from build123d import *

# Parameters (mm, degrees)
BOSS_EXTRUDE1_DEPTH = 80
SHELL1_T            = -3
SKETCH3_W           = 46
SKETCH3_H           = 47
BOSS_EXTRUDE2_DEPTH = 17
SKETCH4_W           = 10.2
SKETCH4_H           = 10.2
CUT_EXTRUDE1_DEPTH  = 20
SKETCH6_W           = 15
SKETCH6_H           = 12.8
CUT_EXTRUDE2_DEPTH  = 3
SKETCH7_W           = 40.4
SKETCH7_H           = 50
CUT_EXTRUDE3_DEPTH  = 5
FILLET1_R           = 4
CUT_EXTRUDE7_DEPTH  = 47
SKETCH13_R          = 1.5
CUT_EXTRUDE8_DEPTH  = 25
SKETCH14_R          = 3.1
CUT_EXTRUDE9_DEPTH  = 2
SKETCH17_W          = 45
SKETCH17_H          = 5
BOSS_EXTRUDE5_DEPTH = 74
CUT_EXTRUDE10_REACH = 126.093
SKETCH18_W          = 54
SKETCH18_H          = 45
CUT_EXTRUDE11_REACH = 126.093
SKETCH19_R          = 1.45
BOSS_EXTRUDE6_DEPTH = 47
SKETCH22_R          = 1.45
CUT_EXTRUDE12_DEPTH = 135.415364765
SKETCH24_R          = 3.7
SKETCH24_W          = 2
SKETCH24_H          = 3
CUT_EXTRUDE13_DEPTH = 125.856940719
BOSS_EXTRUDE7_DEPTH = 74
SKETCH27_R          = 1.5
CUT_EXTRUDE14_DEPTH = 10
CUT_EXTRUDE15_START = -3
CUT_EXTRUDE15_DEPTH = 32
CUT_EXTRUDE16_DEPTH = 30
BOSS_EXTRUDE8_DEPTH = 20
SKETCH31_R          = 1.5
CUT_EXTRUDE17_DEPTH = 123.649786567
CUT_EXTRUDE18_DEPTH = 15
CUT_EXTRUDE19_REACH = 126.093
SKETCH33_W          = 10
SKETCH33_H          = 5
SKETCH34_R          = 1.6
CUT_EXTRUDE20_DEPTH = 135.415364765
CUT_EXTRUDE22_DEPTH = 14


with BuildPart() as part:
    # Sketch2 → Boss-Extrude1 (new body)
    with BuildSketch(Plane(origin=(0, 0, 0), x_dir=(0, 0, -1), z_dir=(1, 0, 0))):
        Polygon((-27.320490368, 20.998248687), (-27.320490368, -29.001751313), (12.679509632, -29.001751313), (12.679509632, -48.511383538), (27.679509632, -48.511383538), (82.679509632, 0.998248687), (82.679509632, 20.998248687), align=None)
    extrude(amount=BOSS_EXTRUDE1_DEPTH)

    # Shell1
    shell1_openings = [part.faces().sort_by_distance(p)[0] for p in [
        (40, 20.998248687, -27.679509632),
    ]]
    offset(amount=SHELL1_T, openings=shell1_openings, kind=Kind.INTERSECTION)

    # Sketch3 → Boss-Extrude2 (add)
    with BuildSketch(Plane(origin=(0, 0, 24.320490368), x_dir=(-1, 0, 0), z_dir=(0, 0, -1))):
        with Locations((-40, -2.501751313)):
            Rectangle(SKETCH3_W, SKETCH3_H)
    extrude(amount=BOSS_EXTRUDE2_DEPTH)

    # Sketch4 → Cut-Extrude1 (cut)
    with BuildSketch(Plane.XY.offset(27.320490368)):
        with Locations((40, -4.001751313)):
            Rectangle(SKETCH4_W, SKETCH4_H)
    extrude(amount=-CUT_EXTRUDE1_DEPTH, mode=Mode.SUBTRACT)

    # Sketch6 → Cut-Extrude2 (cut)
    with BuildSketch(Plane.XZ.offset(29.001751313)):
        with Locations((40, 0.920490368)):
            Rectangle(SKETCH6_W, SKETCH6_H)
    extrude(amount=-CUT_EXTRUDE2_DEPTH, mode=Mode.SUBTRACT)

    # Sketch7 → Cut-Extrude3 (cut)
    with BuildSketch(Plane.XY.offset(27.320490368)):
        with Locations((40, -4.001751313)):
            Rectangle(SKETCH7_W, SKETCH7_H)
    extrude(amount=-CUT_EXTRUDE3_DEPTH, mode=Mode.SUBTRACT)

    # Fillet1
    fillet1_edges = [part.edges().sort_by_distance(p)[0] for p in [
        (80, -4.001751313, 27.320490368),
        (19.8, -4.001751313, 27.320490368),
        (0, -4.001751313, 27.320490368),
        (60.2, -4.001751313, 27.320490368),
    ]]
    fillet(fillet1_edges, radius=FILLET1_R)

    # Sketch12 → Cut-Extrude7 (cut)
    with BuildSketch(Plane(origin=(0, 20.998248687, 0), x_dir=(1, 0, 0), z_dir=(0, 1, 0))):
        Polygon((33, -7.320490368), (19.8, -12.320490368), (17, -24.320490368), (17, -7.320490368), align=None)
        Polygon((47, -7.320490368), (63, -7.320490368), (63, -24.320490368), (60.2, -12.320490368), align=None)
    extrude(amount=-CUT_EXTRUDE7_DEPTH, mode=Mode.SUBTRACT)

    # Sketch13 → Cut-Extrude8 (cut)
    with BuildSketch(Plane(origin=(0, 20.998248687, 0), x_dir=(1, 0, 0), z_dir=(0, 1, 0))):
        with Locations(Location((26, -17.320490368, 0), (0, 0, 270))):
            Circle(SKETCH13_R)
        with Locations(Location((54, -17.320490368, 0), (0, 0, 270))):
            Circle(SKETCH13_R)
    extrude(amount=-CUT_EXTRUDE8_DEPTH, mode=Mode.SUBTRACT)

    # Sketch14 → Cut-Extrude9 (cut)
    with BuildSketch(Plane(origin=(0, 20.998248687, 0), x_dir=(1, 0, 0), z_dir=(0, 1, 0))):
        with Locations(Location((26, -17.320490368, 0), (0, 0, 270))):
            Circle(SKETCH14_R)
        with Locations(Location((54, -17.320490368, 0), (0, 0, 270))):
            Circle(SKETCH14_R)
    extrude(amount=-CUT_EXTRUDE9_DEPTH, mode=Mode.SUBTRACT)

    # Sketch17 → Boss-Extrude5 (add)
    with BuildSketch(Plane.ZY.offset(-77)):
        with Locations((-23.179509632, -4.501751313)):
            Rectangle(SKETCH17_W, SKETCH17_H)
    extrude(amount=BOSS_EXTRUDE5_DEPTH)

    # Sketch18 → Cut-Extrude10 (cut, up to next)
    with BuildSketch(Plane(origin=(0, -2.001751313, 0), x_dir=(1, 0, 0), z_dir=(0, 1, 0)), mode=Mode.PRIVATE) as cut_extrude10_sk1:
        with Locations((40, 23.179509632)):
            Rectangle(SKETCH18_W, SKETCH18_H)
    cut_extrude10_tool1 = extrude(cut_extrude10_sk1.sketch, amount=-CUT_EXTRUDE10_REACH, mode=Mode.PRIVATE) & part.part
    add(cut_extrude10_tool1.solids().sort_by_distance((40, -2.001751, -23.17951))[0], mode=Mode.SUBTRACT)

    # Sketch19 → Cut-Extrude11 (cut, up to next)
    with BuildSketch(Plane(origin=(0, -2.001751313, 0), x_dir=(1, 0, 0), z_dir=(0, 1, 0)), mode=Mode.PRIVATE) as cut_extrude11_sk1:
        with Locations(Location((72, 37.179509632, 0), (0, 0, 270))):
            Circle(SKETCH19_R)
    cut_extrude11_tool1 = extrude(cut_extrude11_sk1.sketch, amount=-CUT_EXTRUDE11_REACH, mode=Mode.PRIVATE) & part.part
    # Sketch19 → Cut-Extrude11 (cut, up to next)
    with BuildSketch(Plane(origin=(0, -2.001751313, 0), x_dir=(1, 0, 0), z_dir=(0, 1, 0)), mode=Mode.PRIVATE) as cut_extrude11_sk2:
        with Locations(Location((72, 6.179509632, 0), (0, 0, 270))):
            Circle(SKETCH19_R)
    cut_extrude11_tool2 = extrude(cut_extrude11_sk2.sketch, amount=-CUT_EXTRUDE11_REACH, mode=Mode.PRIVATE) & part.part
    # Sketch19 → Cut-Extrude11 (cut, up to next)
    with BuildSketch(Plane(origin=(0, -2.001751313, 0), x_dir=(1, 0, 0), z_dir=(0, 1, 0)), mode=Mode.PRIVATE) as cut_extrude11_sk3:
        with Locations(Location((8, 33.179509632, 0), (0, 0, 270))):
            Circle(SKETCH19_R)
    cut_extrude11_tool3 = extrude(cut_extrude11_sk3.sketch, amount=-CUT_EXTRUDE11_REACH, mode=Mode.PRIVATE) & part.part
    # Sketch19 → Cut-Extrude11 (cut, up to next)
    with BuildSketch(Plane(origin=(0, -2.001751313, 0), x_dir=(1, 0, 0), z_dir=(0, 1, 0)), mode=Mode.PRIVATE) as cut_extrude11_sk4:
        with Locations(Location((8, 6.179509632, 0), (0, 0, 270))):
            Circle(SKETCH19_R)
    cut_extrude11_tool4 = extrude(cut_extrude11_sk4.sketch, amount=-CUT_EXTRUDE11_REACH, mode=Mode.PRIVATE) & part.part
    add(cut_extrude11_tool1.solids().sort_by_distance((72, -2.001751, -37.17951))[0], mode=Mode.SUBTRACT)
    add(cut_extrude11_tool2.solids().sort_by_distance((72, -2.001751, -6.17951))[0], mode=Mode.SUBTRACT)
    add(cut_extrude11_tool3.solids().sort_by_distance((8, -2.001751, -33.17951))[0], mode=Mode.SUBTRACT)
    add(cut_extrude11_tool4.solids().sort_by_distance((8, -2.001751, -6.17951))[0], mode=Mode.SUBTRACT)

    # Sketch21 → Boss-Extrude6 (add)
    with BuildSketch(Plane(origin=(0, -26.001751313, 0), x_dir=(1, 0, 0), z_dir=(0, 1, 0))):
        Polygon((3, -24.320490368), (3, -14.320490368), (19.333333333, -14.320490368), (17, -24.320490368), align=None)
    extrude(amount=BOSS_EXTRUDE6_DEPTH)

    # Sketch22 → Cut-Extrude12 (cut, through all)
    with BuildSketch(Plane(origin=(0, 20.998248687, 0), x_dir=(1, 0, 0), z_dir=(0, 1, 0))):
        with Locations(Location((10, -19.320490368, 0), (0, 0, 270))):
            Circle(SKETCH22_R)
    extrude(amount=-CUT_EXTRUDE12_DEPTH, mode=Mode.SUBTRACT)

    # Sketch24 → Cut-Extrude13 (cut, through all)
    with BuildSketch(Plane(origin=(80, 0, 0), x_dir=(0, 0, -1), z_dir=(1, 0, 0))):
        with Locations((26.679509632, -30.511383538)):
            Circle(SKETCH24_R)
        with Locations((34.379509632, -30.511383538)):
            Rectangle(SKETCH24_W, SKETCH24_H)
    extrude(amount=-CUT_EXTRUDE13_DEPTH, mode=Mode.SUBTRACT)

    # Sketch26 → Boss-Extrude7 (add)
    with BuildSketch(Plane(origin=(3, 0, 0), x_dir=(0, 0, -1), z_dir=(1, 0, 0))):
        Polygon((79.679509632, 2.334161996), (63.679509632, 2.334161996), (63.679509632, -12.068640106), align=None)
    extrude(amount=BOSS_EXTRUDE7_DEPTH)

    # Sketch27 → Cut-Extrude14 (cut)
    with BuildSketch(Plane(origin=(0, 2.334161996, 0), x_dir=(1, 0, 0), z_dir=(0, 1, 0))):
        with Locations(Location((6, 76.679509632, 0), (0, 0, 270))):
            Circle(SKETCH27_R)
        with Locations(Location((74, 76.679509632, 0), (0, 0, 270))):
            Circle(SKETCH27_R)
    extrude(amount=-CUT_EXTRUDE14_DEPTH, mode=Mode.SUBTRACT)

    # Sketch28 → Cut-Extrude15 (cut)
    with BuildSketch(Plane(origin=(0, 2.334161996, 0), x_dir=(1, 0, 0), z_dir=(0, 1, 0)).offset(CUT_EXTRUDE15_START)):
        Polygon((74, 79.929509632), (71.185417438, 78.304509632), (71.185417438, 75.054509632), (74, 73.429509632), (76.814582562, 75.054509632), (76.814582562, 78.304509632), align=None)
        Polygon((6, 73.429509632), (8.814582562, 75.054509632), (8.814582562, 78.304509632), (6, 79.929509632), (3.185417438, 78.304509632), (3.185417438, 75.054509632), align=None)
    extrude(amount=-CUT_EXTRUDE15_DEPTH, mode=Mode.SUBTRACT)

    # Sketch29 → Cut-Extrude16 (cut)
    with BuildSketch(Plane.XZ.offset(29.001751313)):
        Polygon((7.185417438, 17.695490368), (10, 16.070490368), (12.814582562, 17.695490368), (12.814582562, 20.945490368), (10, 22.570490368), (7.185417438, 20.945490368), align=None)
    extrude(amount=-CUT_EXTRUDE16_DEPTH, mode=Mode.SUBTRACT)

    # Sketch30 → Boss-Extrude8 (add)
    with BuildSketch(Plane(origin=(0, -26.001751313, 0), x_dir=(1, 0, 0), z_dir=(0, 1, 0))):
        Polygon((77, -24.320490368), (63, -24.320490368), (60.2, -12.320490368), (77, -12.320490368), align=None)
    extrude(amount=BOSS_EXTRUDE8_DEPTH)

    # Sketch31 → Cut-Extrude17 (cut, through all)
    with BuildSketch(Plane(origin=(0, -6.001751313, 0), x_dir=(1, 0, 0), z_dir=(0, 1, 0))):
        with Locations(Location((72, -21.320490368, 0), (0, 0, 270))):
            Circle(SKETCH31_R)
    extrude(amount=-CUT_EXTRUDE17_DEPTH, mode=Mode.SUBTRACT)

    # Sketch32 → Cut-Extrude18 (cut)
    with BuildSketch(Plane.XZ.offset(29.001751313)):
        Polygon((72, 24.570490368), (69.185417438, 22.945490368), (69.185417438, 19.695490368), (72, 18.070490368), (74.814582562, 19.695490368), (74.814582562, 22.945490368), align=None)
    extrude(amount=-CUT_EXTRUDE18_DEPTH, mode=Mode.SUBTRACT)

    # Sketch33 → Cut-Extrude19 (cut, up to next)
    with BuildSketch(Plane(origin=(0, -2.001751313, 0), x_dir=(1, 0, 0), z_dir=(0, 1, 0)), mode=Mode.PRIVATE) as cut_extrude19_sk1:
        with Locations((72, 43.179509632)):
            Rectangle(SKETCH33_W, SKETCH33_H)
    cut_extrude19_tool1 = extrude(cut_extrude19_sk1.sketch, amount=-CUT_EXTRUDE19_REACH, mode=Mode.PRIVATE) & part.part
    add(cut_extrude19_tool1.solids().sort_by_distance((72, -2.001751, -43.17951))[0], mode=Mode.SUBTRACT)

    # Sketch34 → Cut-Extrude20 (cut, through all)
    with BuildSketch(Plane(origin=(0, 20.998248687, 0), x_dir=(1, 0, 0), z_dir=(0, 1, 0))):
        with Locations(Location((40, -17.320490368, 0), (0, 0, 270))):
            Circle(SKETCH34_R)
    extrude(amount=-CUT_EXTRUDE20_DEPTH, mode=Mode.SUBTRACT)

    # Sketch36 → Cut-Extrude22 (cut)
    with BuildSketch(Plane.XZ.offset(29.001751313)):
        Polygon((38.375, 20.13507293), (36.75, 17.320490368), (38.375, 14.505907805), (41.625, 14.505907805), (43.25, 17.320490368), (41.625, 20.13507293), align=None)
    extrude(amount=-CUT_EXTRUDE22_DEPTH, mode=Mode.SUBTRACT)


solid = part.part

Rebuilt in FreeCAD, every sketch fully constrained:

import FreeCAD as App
import Part
import Sketcher

V = App.Vector
Q = App.Units.Quantity


def edges_at(feature, points):
    """Names of the edges that pass closest to the given points."""
    edges = feature.Shape.Edges
    near = lambda p: min(range(len(edges)), key=lambda i: edges[i].distToShape(Part.Vertex(*p))[0])
    return sorted({f"Edge{near(p) + 1}" for p in points})


def faces_at(feature, points):
    """Names of the faces that lie closest to the given points."""
    faces = feature.Shape.Faces
    near = lambda p: min(range(len(faces)), key=lambda i: faces[i].distToShape(Part.Vertex(*p))[0])
    return sorted({f"Face{near(p) + 1}" for p in points})

doc = App.newDocument("Part")
body = doc.addObject("PartDesign::Body", "Body")

# Sketch on YZ plane
sketch1 = doc.addObject("Sketcher::SketchObject", "Sketch")
body.addObject(sketch1)
sketch1.AttachmentSupport = (doc.YZ_Plane, [""])
sketch1.MapMode = "FlatFace"
sketch1.addGeometry([
    Part.LineSegment(V(21, 27, 0), V(-29, 27, 0)),  # 0
    Part.LineSegment(V(-29, 27, 0), V(-29, -13, 0)),  # 1
    Part.LineSegment(V(-29, -13, 0), V(-49, -13, 0)),  # 2
    Part.LineSegment(V(-49, -13, 0), V(-49, -28, 0)),  # 3
    Part.LineSegment(V(-49, -28, 0), V(1, -83, 0)),  # 4
    Part.LineSegment(V(1, -83, 0), V(21, -83, 0)),  # 5
    Part.LineSegment(V(21, -83, 0), V(21, 27, 0)),  # 6
], False)
sketch1.addConstraint([
    Sketcher.Constraint("Coincident", 0, 2, 1, 1),
    Sketcher.Constraint("Coincident", 1, 2, 2, 1),
    Sketcher.Constraint("Coincident", 2, 2, 3, 1),
    Sketcher.Constraint("Coincident", 3, 2, 4, 1),
    Sketcher.Constraint("Coincident", 4, 2, 5, 1),
    Sketcher.Constraint("Coincident", 5, 2, 6, 1),
    Sketcher.Constraint("Coincident", 6, 2, 0, 1),
    Sketcher.Constraint("Horizontal", 0),
    Sketcher.Constraint("Vertical", 1),
    Sketcher.Constraint("Horizontal", 2),
    Sketcher.Constraint("Vertical", 3),
    Sketcher.Constraint("Horizontal", 5),
    Sketcher.Constraint("Vertical", 6),
    Sketcher.Constraint("DistanceX", 0, 2, 0, 1, 50.0),
    Sketcher.Constraint("DistanceX", 5, 1, 5, 2, 20.0),
    Sketcher.Constraint("DistanceY", 1, 2, 1, 1, 40.0),
    Sketcher.Constraint("DistanceY", 3, 2, 3, 1, 15.0),
    Sketcher.Constraint("DistanceY", 6, 1, 6, 2, 110.0),
    Sketcher.Constraint("DistanceX", 2, 2, 2, 1, 19.509632),
    Sketcher.Constraint("DistanceX", 0, 2, -1, 1, 29.001751),
    Sketcher.Constraint("DistanceY", -1, 1, 0, 2, 27.32049),
])
pad1 = doc.addObject("PartDesign::Pad", "Pad")
body.addObject(pad1)
pad1.Profile = sketch1
pad1.Length = 80
doc.recompute()

thickness = doc.addObject("PartDesign::Thickness", "Thickness")
body.addObject(thickness)
thickness.Base = (pad1, faces_at(pad1, [(40, 20.998, -27.68)]))
thickness.Value = 3
thickness.Reversed = True
thickness.Join = "Intersection"

# Sketch on XY plane
sketch2 = doc.addObject("Sketcher::SketchObject", "Sketch001")
body.addObject(sketch2)
sketch2.AttachmentSupport = (doc.XY_Plane, [""])
sketch2.MapMode = "FlatFace"
sketch2.AttachmentOffset = App.Placement(V(0, 0, 24.32049), App.Rotation())
sketch2.addGeometry([
    Part.LineSegment(V(63, 21, 0), V(63, -26, 0)),
    Part.LineSegment(V(63, -26, 0), V(17, -26, 0)),
    Part.LineSegment(V(17, -26, 0), V(17, 21, 0)),
    Part.LineSegment(V(17, 21, 0), V(63, 21, 0)),
], False)
sketch2.addConstraint([
    Sketcher.Constraint("Coincident", 0, 2, 1, 1),
    Sketcher.Constraint("Coincident", 1, 2, 2, 1),
    Sketcher.Constraint("Coincident", 2, 2, 3, 1),
    Sketcher.Constraint("Coincident", 3, 2, 0, 1),
    Sketcher.Constraint("Vertical", 0),
    Sketcher.Constraint("Horizontal", 1),
    Sketcher.Constraint("Vertical", 2),
    Sketcher.Constraint("Horizontal", 3),
    Sketcher.Constraint("DistanceX", 1, 2, 1, 1, 46.0),
    Sketcher.Constraint("DistanceY", 0, 2, 0, 1, 47.0),
    Sketcher.Constraint("DistanceX", -1, 1, 0, 2, 63.0),
    Sketcher.Constraint("DistanceY", 0, 2, -1, 1, 26.001751),
])
pad2 = doc.addObject("PartDesign::Pad", "Pad001")
body.addObject(pad2)
pad2.Profile = sketch2
pad2.Length = 17
pad2.Reversed = True

# Sketch on XY plane
sketch3 = doc.addObject("Sketcher::SketchObject", "Sketch002")
body.addObject(sketch3)
sketch3.AttachmentSupport = (doc.XY_Plane, [""])
sketch3.MapMode = "FlatFace"
sketch3.AttachmentOffset = App.Placement(V(0, 0, 27.32049), App.Rotation())
sketch3.addGeometry([
    Part.LineSegment(V(35, 1, 0), V(35, -9, 0)),
    Part.LineSegment(V(35, -9, 0), V(45, -9, 0)),
    Part.LineSegment(V(45, -9, 0), V(45, 1, 0)),
    Part.LineSegment(V(45, 1, 0), V(35, 1, 0)),
], False)
sketch3.addConstraint([
    Sketcher.Constraint("Coincident", 0, 2, 1, 1),
    Sketcher.Constraint("Coincident", 1, 2, 2, 1),
    Sketcher.Constraint("Coincident", 2, 2, 3, 1),
    Sketcher.Constraint("Coincident", 3, 2, 0, 1),
    Sketcher.Constraint("Vertical", 0),
    Sketcher.Constraint("Horizontal", 1),
    Sketcher.Constraint("Vertical", 2),
    Sketcher.Constraint("Horizontal", 3),
    Sketcher.Constraint("Equal", 3, 0),
    Sketcher.Constraint("DistanceX", 1, 1, 1, 2, 10.2),
    Sketcher.Constraint("DistanceX", -1, 1, 0, 2, 34.9),
    Sketcher.Constraint("DistanceY", 0, 2, -1, 1, 9.101751),
])
pocket1 = doc.addObject("PartDesign::Pocket", "Pocket")
body.addObject(pocket1)
pocket1.Profile = sketch3
pocket1.Length = 20

# Sketch on XZ plane
sketch4 = doc.addObject("Sketcher::SketchObject", "Sketch003")
body.addObject(sketch4)
sketch4.AttachmentSupport = (doc.XZ_Plane, [""])
sketch4.MapMode = "FlatFace"
sketch4.AttachmentOffset = App.Placement(V(0, 0, 29.001751), App.Rotation())
sketch4.addGeometry([
    Part.LineSegment(V(32, 7, 0), V(32, -5, 0)),
    Part.LineSegment(V(32, -5, 0), V(48, -5, 0)),
    Part.LineSegment(V(48, -5, 0), V(48, 7, 0)),
    Part.LineSegment(V(48, 7, 0), V(32, 7, 0)),
], False)
sketch4.addConstraint([
    Sketcher.Constraint("Coincident", 0, 2, 1, 1),
    Sketcher.Constraint("Coincident", 1, 2, 2, 1),
    Sketcher.Constraint("Coincident", 2, 2, 3, 1),
    Sketcher.Constraint("Coincident", 3, 2, 0, 1),
    Sketcher.Constraint("Vertical", 0),
    Sketcher.Constraint("Horizontal", 1),
    Sketcher.Constraint("Vertical", 2),
    Sketcher.Constraint("Horizontal", 3),
    Sketcher.Constraint("DistanceX", 1, 1, 1, 2, 15.0),
    Sketcher.Constraint("DistanceY", 0, 2, 0, 1, 12.8),
    Sketcher.Constraint("DistanceX", -1, 1, 0, 2, 32.5),
    Sketcher.Constraint("DistanceY", 0, 2, -1, 1, 5.47951),
])
pocket2 = doc.addObject("PartDesign::Pocket", "Pocket001")
body.addObject(pocket2)
pocket2.Profile = sketch4
pocket2.Length = 3

# Sketch on XY plane
sketch5 = doc.addObject("Sketcher::SketchObject", "Sketch004")
body.addObject(sketch5)
sketch5.AttachmentSupport = (doc.XY_Plane, [""])
sketch5.MapMode = "FlatFace"
sketch5.AttachmentOffset = App.Placement(V(0, 0, 27.32049), App.Rotation())
sketch5.addGeometry([
    Part.LineSegment(V(20, 21, 0), V(20, -29, 0)),
    Part.LineSegment(V(20, -29, 0), V(60, -29, 0)),
    Part.LineSegment(V(60, -29, 0), V(60, 21, 0)),
    Part.LineSegment(V(60, 21, 0), V(20, 21, 0)),
], False)
sketch5.addConstraint([
    Sketcher.Constraint("Coincident", 0, 2, 1, 1),
    Sketcher.Constraint("Coincident", 1, 2, 2, 1),
    Sketcher.Constraint("Coincident", 2, 2, 3, 1),
    Sketcher.Constraint("Coincident", 3, 2, 0, 1),
    Sketcher.Constraint("Vertical", 0),
    Sketcher.Constraint("Horizontal", 1),
    Sketcher.Constraint("Vertical", 2),
    Sketcher.Constraint("Horizontal", 3),
    Sketcher.Constraint("DistanceY", 0, 2, 0, 1, 50.0),
    Sketcher.Constraint("DistanceX", 1, 1, 1, 2, 40.4),
    Sketcher.Constraint("DistanceX", -1, 1, 0, 2, 19.8),
    Sketcher.Constraint("DistanceY", 0, 2, -1, 1, 29.001751),
])
pocket3 = doc.addObject("PartDesign::Pocket", "Pocket002")
body.addObject(pocket3)
pocket3.Profile = sketch5
pocket3.Length = 5
doc.recompute()

fillet = doc.addObject("PartDesign::Fillet", "Fillet")
body.addObject(fillet)
fillet.Base = (pocket3, edges_at(pocket3, [
    (80, -4.002, 27.32),
    (19.8, -4.002, 27.32),
    (0, -4.002, 27.32),
    (60.2, -4.002, 27.32),
]))
fillet.Radius = 4

# Sketch on XZ plane
sketch6 = doc.addObject("Sketcher::SketchObject", "Sketch005")
body.addObject(sketch6)
sketch6.AttachmentSupport = (doc.XZ_Plane, [""])
sketch6.MapMode = "FlatFace"
sketch6.AttachmentOffset = App.Placement(V(0, 0, -20.998249), App.Rotation())
sketch6.addGeometry([
    Part.LineSegment(V(20, 12, 0), V(33, 7, 0)),  # 0
    Part.LineSegment(V(33, 7, 0), V(17, 7, 0)),  # 1
    Part.LineSegment(V(17, 7, 0), V(17, 24, 0)),  # 2
    Part.LineSegment(V(17, 24, 0), V(20, 12, 0)),  # 3
    Part.LineSegment(V(63, 7, 0), V(47, 7, 0)),  # 4
    Part.LineSegment(V(47, 7, 0), V(60, 12, 0)),  # 5
    Part.LineSegment(V(60, 12, 0), V(63, 24, 0)),  # 6
    Part.LineSegment(V(63, 24, 0), V(63, 7, 0)),  # 7
], False)
sketch6.addConstraint([
    Sketcher.Constraint("Coincident", 0, 2, 1, 1),
    Sketcher.Constraint("Coincident", 1, 2, 2, 1),
    Sketcher.Constraint("Coincident", 2, 2, 3, 1),
    Sketcher.Constraint("Coincident", 3, 2, 0, 1),
    Sketcher.Constraint("Coincident", 4, 2, 5, 1),
    Sketcher.Constraint("Coincident", 5, 2, 6, 1),
    Sketcher.Constraint("Coincident", 6, 2, 7, 1),
    Sketcher.Constraint("Coincident", 7, 2, 4, 1),
    Sketcher.Constraint("Horizontal", 1),
    Sketcher.Constraint("Vertical", 2),
    Sketcher.Constraint("Horizontal", 4),
    Sketcher.Constraint("Vertical", 7),
    Sketcher.Constraint("Horizontal", 1, 2, 4, 2),
    Sketcher.Constraint("Horizontal", 3, 2, 5, 2),
    Sketcher.Constraint("Horizontal", 2, 2, 6, 2),
    Sketcher.Constraint("Equal", 1, 4),
    Sketcher.Constraint("Equal", 0, 5),
    Sketcher.Constraint("DistanceX", 1, 2, 1, 1, 16.0),
    Sketcher.Constraint("DistanceY", 2, 1, 2, 2, 17.0),
    Sketcher.Constraint("DistanceX", -1, 1, 0, 2, 33.0),
    Sketcher.Constraint("DistanceX", -1, 1, 4, 2, 47.0),
    Sketcher.Constraint("DistanceY", 1, 2, 3, 2, 5.0),
    Sketcher.Constraint("DistanceX", -1, 1, 3, 2, 19.8),
    Sketcher.Constraint("DistanceY", -1, 1, 0, 2, 7.32049),
])
pocket4 = doc.addObject("PartDesign::Pocket", "Pocket003")
body.addObject(pocket4)
pocket4.Profile = sketch6
pocket4.Length = 47
pocket4.Reversed = True

# Sketch on XZ plane
sketch7 = doc.addObject("Sketcher::SketchObject", "Sketch006")
body.addObject(sketch7)
sketch7.AttachmentSupport = (doc.XZ_Plane, [""])
sketch7.MapMode = "FlatFace"
sketch7.AttachmentOffset = App.Placement(V(0, 0, -20.998249), App.Rotation())
sketch7.addGeometry([
    Part.Circle(V(26, 17.3, 0), V(0, 0, 1), 1.5),
    Part.Circle(V(54, 17.3, 0), V(0, 0, 1), 1.5),
], False)
sketch7.addConstraint([
    Sketcher.Constraint("Equal", 0, 1),
    Sketcher.Constraint("Horizontal", 0, 3, 1, 3),
    Sketcher.Constraint("Diameter", 0, 3.0),
    Sketcher.Constraint("DistanceX", -1, 1, 0, 3, 26.0),
    Sketcher.Constraint("DistanceX", -1, 1, 1, 3, 54.0),
    Sketcher.Constraint("DistanceY", -1, 1, 0, 3, 17.32049),
])
pocket5 = doc.addObject("PartDesign::Pocket", "Pocket004")
body.addObject(pocket5)
pocket5.Profile = sketch7
pocket5.Length = 25
pocket5.Reversed = True

# Sketch on XZ plane
sketch8 = doc.addObject("Sketcher::SketchObject", "Sketch007")
body.addObject(sketch8)
sketch8.AttachmentSupport = (doc.XZ_Plane, [""])
sketch8.MapMode = "FlatFace"
sketch8.AttachmentOffset = App.Placement(V(0, 0, -20.998249), App.Rotation())
sketch8.addGeometry([
    Part.Circle(V(26, 17.3, 0), V(0, 0, 1), 3.1),
    Part.Circle(V(54, 17.3, 0), V(0, 0, 1), 3.1),
], False)
sketch8.addConstraint([
    Sketcher.Constraint("Equal", 0, 1),
    Sketcher.Constraint("Horizontal", 0, 3, 1, 3),
    Sketcher.Constraint("Diameter", 0, 6.2),
    Sketcher.Constraint("DistanceX", -1, 1, 0, 3, 26.0),
    Sketcher.Constraint("DistanceX", -1, 1, 1, 3, 54.0),
    Sketcher.Constraint("DistanceY", -1, 1, 0, 3, 17.32049),
])
pocket6 = doc.addObject("PartDesign::Pocket", "Pocket005")
body.addObject(pocket6)
pocket6.Profile = sketch8
pocket6.Length = 2
pocket6.Reversed = True

# Sketch on YZ plane
sketch9 = doc.addObject("Sketcher::SketchObject", "Sketch008")
body.addObject(sketch9)
sketch9.AttachmentSupport = (doc.YZ_Plane, [""])
sketch9.MapMode = "FlatFace"
sketch9.AttachmentOffset = App.Placement(V(0, 0, 77), App.Rotation())
sketch9.addGeometry([
    Part.LineSegment(V(-2, -46, 0), V(-7, -46, 0)),
    Part.LineSegment(V(-7, -46, 0), V(-7, -1, 0)),
    Part.LineSegment(V(-7, -1, 0), V(-2, -1, 0)),
    Part.LineSegment(V(-2, -1, 0), V(-2, -46, 0)),
], False)
sketch9.addConstraint([
    Sketcher.Constraint("Coincident", 0, 2, 1, 1),
    Sketcher.Constraint("Coincident", 1, 2, 2, 1),
    Sketcher.Constraint("Coincident", 2, 2, 3, 1),
    Sketcher.Constraint("Coincident", 3, 2, 0, 1),
    Sketcher.Constraint("Horizontal", 0),
    Sketcher.Constraint("Vertical", 1),
    Sketcher.Constraint("Horizontal", 2),
    Sketcher.Constraint("Vertical", 3),
    Sketcher.Constraint("DistanceX", 0, 2, 0, 1, 5.0),
    Sketcher.Constraint("DistanceY", 1, 1, 1, 2, 45.0),
    Sketcher.Constraint("DistanceX", 0, 2, -1, 1, 7.001751),
    Sketcher.Constraint("DistanceY", 0, 2, -1, 1, 45.67951),
])
pad3 = doc.addObject("PartDesign::Pad", "Pad002")
body.addObject(pad3)
pad3.Profile = sketch9
pad3.Length = 74
pad3.Reversed = True

# Sketch on XZ plane
sketch10 = doc.addObject("Sketcher::SketchObject", "Sketch009")
body.addObject(sketch10)
sketch10.AttachmentSupport = (doc.XZ_Plane, [""])
sketch10.MapMode = "FlatFace"
sketch10.AttachmentOffset = App.Placement(V(0, 0, 2.001751), App.Rotation())
sketch10.addGeometry([
    Part.LineSegment(V(13, -46, 0), V(13, -1, 0)),
    Part.LineSegment(V(13, -1, 0), V(67, -1, 0)),
    Part.LineSegment(V(67, -1, 0), V(67, -46, 0)),
    Part.LineSegment(V(67, -46, 0), V(13, -46, 0)),
], False)
sketch10.addConstraint([
    Sketcher.Constraint("Coincident", 0, 2, 1, 1),
    Sketcher.Constraint("Coincident", 1, 2, 2, 1),
    Sketcher.Constraint("Coincident", 2, 2, 3, 1),
    Sketcher.Constraint("Coincident", 3, 2, 0, 1),
    Sketcher.Constraint("Vertical", 0),
    Sketcher.Constraint("Horizontal", 1),
    Sketcher.Constraint("Vertical", 2),
    Sketcher.Constraint("Horizontal", 3),
    Sketcher.Constraint("DistanceX", 1, 1, 1, 2, 54.0),
    Sketcher.Constraint("DistanceY", 0, 1, 0, 2, 45.0),
    Sketcher.Constraint("DistanceX", -1, 1, 0, 2, 13.0),
    Sketcher.Constraint("DistanceY", 0, 2, -1, 1, 0.67951),
])
pocket7 = doc.addObject("PartDesign::Pocket", "Pocket006")
body.addObject(pocket7)
pocket7.Profile = sketch10
pocket7.Type = "UpToFirst"
pocket7.Reversed = True

# Sketch on XZ plane
sketch11 = doc.addObject("Sketcher::SketchObject", "Sketch010")
body.addObject(sketch11)
sketch11.AttachmentSupport = (doc.XZ_Plane, [""])
sketch11.MapMode = "FlatFace"
sketch11.AttachmentOffset = App.Placement(V(0, 0, 2.001751), App.Rotation())
sketch11.addGeometry(Part.Circle(V(72, -37.2, 0), V(0, 0, 1), 1.4), False)
sketch11.addConstraint([
    Sketcher.Constraint("Diameter", 0, 2.9),
    Sketcher.Constraint("DistanceX", -1, 1, 0, 3, 72.0),
    Sketcher.Constraint("DistanceY", 0, 3, -1, 1, 37.17951),
])
pocket8 = doc.addObject("PartDesign::Pocket", "Pocket007")
body.addObject(pocket8)
pocket8.Profile = sketch11
pocket8.Type = "UpToFirst"
pocket8.Reversed = True

# Sketch on XZ plane
sketch12 = doc.addObject("Sketcher::SketchObject", "Sketch011")
body.addObject(sketch12)
sketch12.AttachmentSupport = (doc.XZ_Plane, [""])
sketch12.MapMode = "FlatFace"
sketch12.AttachmentOffset = App.Placement(V(0, 0, 2.001751), App.Rotation())
sketch12.addGeometry(Part.Circle(V(72, -6.2, 0), V(0, 0, 1), 1.4), False)
sketch12.addConstraint([
    Sketcher.Constraint("Diameter", 0, 2.9),
    Sketcher.Constraint("DistanceX", -1, 1, 0, 3, 72.0),
    Sketcher.Constraint("DistanceY", 0, 3, -1, 1, 6.17951),
])
pocket9 = doc.addObject("PartDesign::Pocket", "Pocket008")
body.addObject(pocket9)
pocket9.Profile = sketch12
pocket9.Type = "UpToFirst"
pocket9.Reversed = True

# Sketch on XZ plane
sketch13 = doc.addObject("Sketcher::SketchObject", "Sketch012")
body.addObject(sketch13)
sketch13.AttachmentSupport = (doc.XZ_Plane, [""])
sketch13.MapMode = "FlatFace"
sketch13.AttachmentOffset = App.Placement(V(0, 0, 2.001751), App.Rotation())
sketch13.addGeometry(Part.Circle(V(8, -33.2, 0), V(0, 0, 1), 1.4), False)
sketch13.addConstraint([
    Sketcher.Constraint("Diameter", 0, 2.9),
    Sketcher.Constraint("DistanceX", -1, 1, 0, 3, 8.0),
    Sketcher.Constraint("DistanceY", 0, 3, -1, 1, 33.17951),
])
pocket10 = doc.addObject("PartDesign::Pocket", "Pocket009")
body.addObject(pocket10)
pocket10.Profile = sketch13
pocket10.Type = "UpToFirst"
pocket10.Reversed = True

# Sketch on XZ plane
sketch14 = doc.addObject("Sketcher::SketchObject", "Sketch013")
body.addObject(sketch14)
sketch14.AttachmentSupport = (doc.XZ_Plane, [""])
sketch14.MapMode = "FlatFace"
sketch14.AttachmentOffset = App.Placement(V(0, 0, 2.001751), App.Rotation())
sketch14.addGeometry(Part.Circle(V(8, -6.2, 0), V(0, 0, 1), 1.4), False)
sketch14.addConstraint([
    Sketcher.Constraint("Diameter", 0, 2.9),
    Sketcher.Constraint("DistanceX", -1, 1, 0, 3, 8.0),
    Sketcher.Constraint("DistanceY", 0, 3, -1, 1, 6.17951),
])
pocket11 = doc.addObject("PartDesign::Pocket", "Pocket010")
body.addObject(pocket11)
pocket11.Profile = sketch14
pocket11.Type = "UpToFirst"
pocket11.Reversed = True

# Sketch on XZ plane
sketch15 = doc.addObject("Sketcher::SketchObject", "Sketch014")
body.addObject(sketch15)
sketch15.AttachmentSupport = (doc.XZ_Plane, [""])
sketch15.MapMode = "FlatFace"
sketch15.AttachmentOffset = App.Placement(V(0, 0, 26.001751), App.Rotation())
sketch15.addGeometry([
    Part.LineSegment(V(3, 14, 0), V(3, 24, 0)),
    Part.LineSegment(V(3, 24, 0), V(17, 24, 0)),
    Part.LineSegment(V(17, 24, 0), V(19, 14, 0)),
    Part.LineSegment(V(19, 14, 0), V(3, 14, 0)),
], False)
sketch15.addConstraint([
    Sketcher.Constraint("Coincident", 0, 2, 1, 1),
    Sketcher.Constraint("Coincident", 1, 2, 2, 1),
    Sketcher.Constraint("Coincident", 2, 2, 3, 1),
    Sketcher.Constraint("Coincident", 3, 2, 0, 1),
    Sketcher.Constraint("Vertical", 0),
    Sketcher.Constraint("Horizontal", 1),
    Sketcher.Constraint("Horizontal", 3),
    Sketcher.Constraint("DistanceX", 1, 1, 1, 2, 14.0),
    Sketcher.Constraint("DistanceY", 0, 1, 0, 2, 10.0),
    Sketcher.Constraint("DistanceX", -1, 1, 0, 2, 3.0),
    Sketcher.Constraint("DistanceX", 3, 2, 3, 1, 16.333333),
    Sketcher.Constraint("DistanceY", -1, 1, 0, 2, 24.32049),
])
pad4 = doc.addObject("PartDesign::Pad", "Pad003")
body.addObject(pad4)
pad4.Profile = sketch15
pad4.Length = 47
pad4.Reversed = True

# Sketch on XZ plane
sketch16 = doc.addObject("Sketcher::SketchObject", "Sketch015")
body.addObject(sketch16)
sketch16.AttachmentSupport = (doc.XZ_Plane, [""])
sketch16.MapMode = "FlatFace"
sketch16.AttachmentOffset = App.Placement(V(0, 0, -20.998249), App.Rotation())
sketch16.addGeometry(Part.Circle(V(10, 19.3, 0), V(0, 0, 1), 1.4), False)
sketch16.addConstraint([
    Sketcher.Constraint("Diameter", 0, 2.9),
    Sketcher.Constraint("DistanceX", -1, 1, 0, 3, 10.0),
    Sketcher.Constraint("DistanceY", -1, 1, 0, 3, 19.32049),
])
pocket12 = doc.addObject("PartDesign::Pocket", "Pocket011")
body.addObject(pocket12)
pocket12.Profile = sketch16
pocket12.Type = "ThroughAll"
pocket12.Reversed = True

# Sketch on YZ plane
sketch17 = doc.addObject("Sketcher::SketchObject", "Sketch016")
body.addObject(sketch17)
sketch17.AttachmentSupport = (doc.YZ_Plane, [""])
sketch17.MapMode = "FlatFace"
sketch17.AttachmentOffset = App.Placement(V(0, 0, 80), App.Rotation())
sketch17.addGeometry([
    Part.Circle(V(-30.5, -26.7, 0), V(0, 0, 1), 3.7),  # 0
    Part.LineSegment(V(-29, -33.4, 0), V(-32, -33.4, 0)),  # 1
    Part.LineSegment(V(-32, -33.4, 0), V(-32, -35.4, 0)),  # 2
    Part.LineSegment(V(-32, -35.4, 0), V(-29, -35.4, 0)),  # 3
    Part.LineSegment(V(-29, -35.4, 0), V(-29, -33.4, 0)),  # 4
], False)
sketch17.addConstraint([
    Sketcher.Constraint("Coincident", 1, 2, 2, 1),
    Sketcher.Constraint("Coincident", 2, 2, 3, 1),
    Sketcher.Constraint("Coincident", 3, 2, 4, 1),
    Sketcher.Constraint("Coincident", 4, 2, 1, 1),
    Sketcher.Constraint("Horizontal", 1),
    Sketcher.Constraint("Vertical", 2),
    Sketcher.Constraint("Horizontal", 3),
    Sketcher.Constraint("Vertical", 4),
    Sketcher.Constraint("Diameter", 0, 7.4),
    Sketcher.Constraint("DistanceX", 1, 2, 1, 1, 3.0),
    Sketcher.Constraint("DistanceY", 2, 2, 2, 1, 2.0),
    Sketcher.Constraint("DistanceX", 1, 2, 0, 3, 1.5),
    Sketcher.Constraint("DistanceY", 1, 2, 0, 3, 6.7),
    Sketcher.Constraint("DistanceY", 0, 3, -1, 1, 26.67951),
    Sketcher.Constraint("DistanceX", 0, 3, -1, 1, 30.511384),
])
pocket13 = doc.addObject("PartDesign::Pocket", "Pocket012")
body.addObject(pocket13)
pocket13.Profile = sketch17
pocket13.Type = "ThroughAll"

# Sketch on YZ plane
sketch18 = doc.addObject("Sketcher::SketchObject", "Sketch017")
body.addObject(sketch18)
sketch18.AttachmentSupport = (doc.YZ_Plane, [""])
sketch18.MapMode = "FlatFace"
sketch18.AttachmentOffset = App.Placement(V(0, 0, 3), App.Rotation())
sketch18.addGeometry([
    Part.LineSegment(V(2, -80, 0), V(2, -64, 0)),
    Part.LineSegment(V(2, -64, 0), V(-12, -64, 0)),
    Part.LineSegment(V(-12, -64, 0), V(2, -80, 0)),
], False)
sketch18.addConstraint([
    Sketcher.Constraint("Coincident", 0, 2, 1, 1),
    Sketcher.Constraint("Coincident", 1, 2, 2, 1),
    Sketcher.Constraint("Coincident", 2, 2, 0, 1),
    Sketcher.Constraint("Vertical", 0),
    Sketcher.Constraint("Horizontal", 1),
    Sketcher.Constraint("DistanceY", 0, 1, 0, 2, 16.0),
    Sketcher.Constraint("DistanceX", 1, 2, 1, 1, 14.402802),
    Sketcher.Constraint("DistanceX", -1, 1, 0, 2, 2.334162),
    Sketcher.Constraint("DistanceY", 0, 2, -1, 1, 63.67951),
])
pad5 = doc.addObject("PartDesign::Pad", "Pad004")
body.addObject(pad5)
pad5.Profile = sketch18
pad5.Length = 74

# Sketch on XZ plane
sketch19 = doc.addObject("Sketcher::SketchObject", "Sketch018")
body.addObject(sketch19)
sketch19.AttachmentSupport = (doc.XZ_Plane, [""])
sketch19.MapMode = "FlatFace"
sketch19.AttachmentOffset = App.Placement(V(0, 0, -2.334162), App.Rotation())
sketch19.addGeometry([
    Part.Circle(V(6, -76.7, 0), V(0, 0, 1), 1.5),
    Part.Circle(V(74, -76.7, 0), V(0, 0, 1), 1.5),
], False)
sketch19.addConstraint([
    Sketcher.Constraint("Equal", 0, 1),
    Sketcher.Constraint("Horizontal", 0, 3, 1, 3),
    Sketcher.Constraint("Diameter", 0, 3.0),
    Sketcher.Constraint("DistanceX", -1, 1, 0, 3, 6.0),
    Sketcher.Constraint("DistanceX", -1, 1, 1, 3, 74.0),
    Sketcher.Constraint("DistanceY", 0, 3, -1, 1, 76.67951),
])
pocket14 = doc.addObject("PartDesign::Pocket", "Pocket013")
body.addObject(pocket14)
pocket14.Profile = sketch19
pocket14.Length = 10
pocket14.Reversed = True

# Sketch on XZ plane
sketch20 = doc.addObject("Sketcher::SketchObject", "Sketch019")
body.addObject(sketch20)
sketch20.AttachmentSupport = (doc.XZ_Plane, [""])
sketch20.MapMode = "FlatFace"
sketch20.AttachmentOffset = App.Placement(V(0, 0, 0.665838), App.Rotation())
sketch20.addGeometry([
    Part.LineSegment(V(74, -79.9, 0), V(71.2, -78.3, 0)),  # 0
    Part.LineSegment(V(71.2, -78.3, 0), V(71.2, -75.1, 0)),  # 1
    Part.LineSegment(V(71.2, -75.1, 0), V(74, -73.4, 0)),  # 2
    Part.LineSegment(V(74, -73.4, 0), V(76.8, -75.1, 0)),  # 3
    Part.LineSegment(V(76.8, -75.1, 0), V(76.8, -78.3, 0)),  # 4
    Part.LineSegment(V(76.8, -78.3, 0), V(74, -79.9, 0)),  # 5
    Part.LineSegment(V(6, -73.4, 0), V(8.8, -75.1, 0)),  # 6
    Part.LineSegment(V(8.8, -75.1, 0), V(8.8, -78.3, 0)),  # 7
    Part.LineSegment(V(8.8, -78.3, 0), V(6, -79.9, 0)),  # 8
    Part.LineSegment(V(6, -79.9, 0), V(3.2, -78.3, 0)),  # 9
    Part.LineSegment(V(3.2, -78.3, 0), V(3.2, -75.1, 0)),  # 10
    Part.LineSegment(V(3.2, -75.1, 0), V(6, -73.4, 0)),  # 11
], False)
sketch20.addConstraint([
    Sketcher.Constraint("Coincident", 0, 2, 1, 1),
    Sketcher.Constraint("Coincident", 1, 2, 2, 1),
    Sketcher.Constraint("Coincident", 2, 2, 3, 1),
    Sketcher.Constraint("Coincident", 3, 2, 4, 1),
    Sketcher.Constraint("Coincident", 4, 2, 5, 1),
    Sketcher.Constraint("Coincident", 5, 2, 0, 1),
    Sketcher.Constraint("Coincident", 6, 2, 7, 1),
    Sketcher.Constraint("Coincident", 7, 2, 8, 1),
    Sketcher.Constraint("Coincident", 8, 2, 9, 1),
    Sketcher.Constraint("Coincident", 9, 2, 10, 1),
    Sketcher.Constraint("Coincident", 10, 2, 11, 1),
    Sketcher.Constraint("Coincident", 11, 2, 6, 1),
    Sketcher.Constraint("Vertical", 1),
    Sketcher.Constraint("Vertical", 4),
    Sketcher.Constraint("Vertical", 7),
    Sketcher.Constraint("Vertical", 10),
    Sketcher.Constraint("Parallel", 0, 3),
    Sketcher.Constraint("Parallel", 2, 5),
    Sketcher.Constraint("Parallel", 3, 6),
    Sketcher.Constraint("Parallel", 5, 8),
    Sketcher.Constraint("Parallel", 6, 9),
    Sketcher.Constraint("Parallel", 8, 11),
    Sketcher.Constraint("Horizontal", 1, 2, 3, 2),
    Sketcher.Constraint("Horizontal", 0, 2, 4, 2),
    Sketcher.Constraint("Horizontal", 3, 2, 6, 2),
    Sketcher.Constraint("Horizontal", 4, 2, 7, 2),
    Sketcher.Constraint("Horizontal", 5, 2, 8, 2),
    Sketcher.Constraint("Horizontal", 7, 2, 9, 2),
    Sketcher.Constraint("Horizontal", 6, 2, 10, 2),
    Sketcher.Constraint("Vertical", 2, 2, 5, 2),
    Sketcher.Constraint("Angle", 0, Q("150 deg")),
    Sketcher.Constraint("DistanceX", -1, 1, 2, 2, 74.0),
    Sketcher.Constraint("DistanceX", -1, 1, 8, 2, 6.0),
    Sketcher.Constraint("DistanceY", 1, 1, 1, 2, 3.25),
    Sketcher.Constraint("DistanceY", 5, 2, 2, 2, 6.5),
    Sketcher.Constraint("DistanceY", 0, 2, -1, 1, 78.30451),
])
pocket15 = doc.addObject("PartDesign::Pocket", "Pocket014")
body.addObject(pocket15)
pocket15.Profile = sketch20
pocket15.Length = 32
pocket15.Reversed = True

# Sketch on XZ plane
sketch21 = doc.addObject("Sketcher::SketchObject", "Sketch020")
body.addObject(sketch21)
sketch21.AttachmentSupport = (doc.XZ_Plane, [""])
sketch21.MapMode = "FlatFace"
sketch21.AttachmentOffset = App.Placement(V(0, 0, 29.001751), App.Rotation())
sketch21.addGeometry([
    Part.LineSegment(V(7.2, 17.7, 0), V(10, 16.1, 0)),  # 0
    Part.LineSegment(V(10, 16.1, 0), V(12.8, 17.7, 0)),  # 1
    Part.LineSegment(V(12.8, 17.7, 0), V(12.8, 20.9, 0)),  # 2
    Part.LineSegment(V(12.8, 20.9, 0), V(10, 22.6, 0)),  # 3
    Part.LineSegment(V(10, 22.6, 0), V(7.2, 20.9, 0)),  # 4
    Part.LineSegment(V(7.2, 20.9, 0), V(7.2, 17.7, 0)),  # 5
], False)
sketch21.addConstraint([
    Sketcher.Constraint("Coincident", 0, 2, 1, 1),
    Sketcher.Constraint("Coincident", 1, 2, 2, 1),
    Sketcher.Constraint("Coincident", 2, 2, 3, 1),
    Sketcher.Constraint("Coincident", 3, 2, 4, 1),
    Sketcher.Constraint("Coincident", 4, 2, 5, 1),
    Sketcher.Constraint("Coincident", 5, 2, 0, 1),
    Sketcher.Constraint("Vertical", 2),
    Sketcher.Constraint("Vertical", 5),
    Sketcher.Constraint("Parallel", 0, 3),
    Sketcher.Constraint("Parallel", 1, 4),
    Sketcher.Constraint("Horizontal", 2, 2, 4, 2),
    Sketcher.Constraint("Horizontal", 1, 2, 5, 2),
    Sketcher.Constraint("Vertical", 0, 2, 3, 2),
    Sketcher.Constraint("Angle", 0, Q("-30 deg")),
    Sketcher.Constraint("DistanceX", -1, 1, 0, 2, 10.0),
    Sketcher.Constraint("DistanceY", 2, 1, 2, 2, 3.25),
    Sketcher.Constraint("DistanceY", 0, 2, 3, 2, 6.5),
    Sketcher.Constraint("DistanceY", -1, 1, 0, 2, 16.07049),
])
pocket16 = doc.addObject("PartDesign::Pocket", "Pocket015")
body.addObject(pocket16)
pocket16.Profile = sketch21
pocket16.Length = 30

# Sketch on XZ plane
sketch22 = doc.addObject("Sketcher::SketchObject", "Sketch021")
body.addObject(sketch22)
sketch22.AttachmentSupport = (doc.XZ_Plane, [""])
sketch22.MapMode = "FlatFace"
sketch22.AttachmentOffset = App.Placement(V(0, 0, 26.001751), App.Rotation())
sketch22.addGeometry([
    Part.LineSegment(V(63, 24, 0), V(77, 24, 0)),
    Part.LineSegment(V(77, 24, 0), V(77, 12, 0)),
    Part.LineSegment(V(77, 12, 0), V(60, 12, 0)),
    Part.LineSegment(V(60, 12, 0), V(63, 24, 0)),
], False)
sketch22.addConstraint([
    Sketcher.Constraint("Coincident", 0, 2, 1, 1),
    Sketcher.Constraint("Coincident", 1, 2, 2, 1),
    Sketcher.Constraint("Coincident", 2, 2, 3, 1),
    Sketcher.Constraint("Coincident", 3, 2, 0, 1),
    Sketcher.Constraint("Horizontal", 0),
    Sketcher.Constraint("Vertical", 1),
    Sketcher.Constraint("Horizontal", 2),
    Sketcher.Constraint("DistanceX", 0, 1, 0, 2, 14.0),
    Sketcher.Constraint("DistanceY", 1, 2, 1, 1, 12.0),
    Sketcher.Constraint("DistanceX", 2, 2, 2, 1, 16.8),
    Sketcher.Constraint("DistanceX", -1, 1, 0, 2, 77.0),
    Sketcher.Constraint("DistanceY", -1, 1, 0, 2, 24.32049),
])
pad6 = doc.addObject("PartDesign::Pad", "Pad005")
body.addObject(pad6)
pad6.Profile = sketch22
pad6.Length = 20
pad6.Reversed = True

# Sketch on XZ plane
sketch23 = doc.addObject("Sketcher::SketchObject", "Sketch022")
body.addObject(sketch23)
sketch23.AttachmentSupport = (doc.XZ_Plane, [""])
sketch23.MapMode = "FlatFace"
sketch23.AttachmentOffset = App.Placement(V(0, 0, 6.001751), App.Rotation())
sketch23.addGeometry(Part.Circle(V(72, 21.3, 0), V(0, 0, 1), 1.5), False)
sketch23.addConstraint([
    Sketcher.Constraint("Diameter", 0, 3.0),
    Sketcher.Constraint("DistanceX", -1, 1, 0, 3, 72.0),
    Sketcher.Constraint("DistanceY", -1, 1, 0, 3, 21.32049),
])
pocket17 = doc.addObject("PartDesign::Pocket", "Pocket016")
body.addObject(pocket17)
pocket17.Profile = sketch23
pocket17.Type = "ThroughAll"
pocket17.Reversed = True

# Sketch on XZ plane
sketch24 = doc.addObject("Sketcher::SketchObject", "Sketch023")
body.addObject(sketch24)
sketch24.AttachmentSupport = (doc.XZ_Plane, [""])
sketch24.MapMode = "FlatFace"
sketch24.AttachmentOffset = App.Placement(V(0, 0, 29.001751), App.Rotation())
sketch24.addGeometry([
    Part.LineSegment(V(72, 24.6, 0), V(69.2, 22.9, 0)),  # 0
    Part.LineSegment(V(69.2, 22.9, 0), V(69.2, 19.7, 0)),  # 1
    Part.LineSegment(V(69.2, 19.7, 0), V(72, 18.1, 0)),  # 2
    Part.LineSegment(V(72, 18.1, 0), V(74.8, 19.7, 0)),  # 3
    Part.LineSegment(V(74.8, 19.7, 0), V(74.8, 22.9, 0)),  # 4
    Part.LineSegment(V(74.8, 22.9, 0), V(72, 24.6, 0)),  # 5
], False)
sketch24.addConstraint([
    Sketcher.Constraint("Coincident", 0, 2, 1, 1),
    Sketcher.Constraint("Coincident", 1, 2, 2, 1),
    Sketcher.Constraint("Coincident", 2, 2, 3, 1),
    Sketcher.Constraint("Coincident", 3, 2, 4, 1),
    Sketcher.Constraint("Coincident", 4, 2, 5, 1),
    Sketcher.Constraint("Coincident", 5, 2, 0, 1),
    Sketcher.Constraint("Vertical", 1),
    Sketcher.Constraint("Vertical", 4),
    Sketcher.Constraint("Parallel", 0, 3),
    Sketcher.Constraint("Parallel", 2, 5),
    Sketcher.Constraint("Horizontal", 1, 2, 3, 2),
    Sketcher.Constraint("Horizontal", 0, 2, 4, 2),
    Sketcher.Constraint("Vertical", 2, 2, 5, 2),
    Sketcher.Constraint("Angle", 0, Q("-150 deg")),
    Sketcher.Constraint("DistanceX", -1, 1, 2, 2, 72.0),
    Sketcher.Constraint("DistanceY", 1, 2, 1, 1, 3.25),
    Sketcher.Constraint("DistanceY", 2, 2, 5, 2, 6.5),
    Sketcher.Constraint("DistanceY", -1, 1, 0, 2, 22.94549),
])
pocket18 = doc.addObject("PartDesign::Pocket", "Pocket017")
body.addObject(pocket18)
pocket18.Profile = sketch24
pocket18.Length = 15

# Sketch on XZ plane
sketch25 = doc.addObject("Sketcher::SketchObject", "Sketch024")
body.addObject(sketch25)
sketch25.AttachmentSupport = (doc.XZ_Plane, [""])
sketch25.MapMode = "FlatFace"
sketch25.AttachmentOffset = App.Placement(V(0, 0, 2.001751), App.Rotation())
sketch25.addGeometry([
    Part.LineSegment(V(67, -46, 0), V(67, -41, 0)),
    Part.LineSegment(V(67, -41, 0), V(77, -41, 0)),
    Part.LineSegment(V(77, -41, 0), V(77, -46, 0)),
    Part.LineSegment(V(77, -46, 0), V(67, -46, 0)),
], False)
sketch25.addConstraint([
    Sketcher.Constraint("Coincident", 0, 2, 1, 1),
    Sketcher.Constraint("Coincident", 1, 2, 2, 1),
    Sketcher.Constraint("Coincident", 2, 2, 3, 1),
    Sketcher.Constraint("Coincident", 3, 2, 0, 1),
    Sketcher.Constraint("Vertical", 0),
    Sketcher.Constraint("Horizontal", 1),
    Sketcher.Constraint("Vertical", 2),
    Sketcher.Constraint("Horizontal", 3),
    Sketcher.Constraint("DistanceX", 1, 1, 1, 2, 10.0),
    Sketcher.Constraint("DistanceY", 0, 1, 0, 2, 5.0),
    Sketcher.Constraint("DistanceX", -1, 1, 0, 2, 67.0),
    Sketcher.Constraint("DistanceY", 0, 2, -1, 1, 40.67951),
])
pocket19 = doc.addObject("PartDesign::Pocket", "Pocket018")
body.addObject(pocket19)
pocket19.Profile = sketch25
pocket19.Type = "UpToFirst"
pocket19.Reversed = True

# Sketch on XZ plane
sketch26 = doc.addObject("Sketcher::SketchObject", "Sketch025")
body.addObject(sketch26)
sketch26.AttachmentSupport = (doc.XZ_Plane, [""])
sketch26.MapMode = "FlatFace"
sketch26.AttachmentOffset = App.Placement(V(0, 0, -20.998249), App.Rotation())
sketch26.addGeometry(Part.Circle(V(40, 17.3, 0), V(0, 0, 1), 1.6), False)
sketch26.addConstraint([
    Sketcher.Constraint("Diameter", 0, 3.2),
    Sketcher.Constraint("DistanceX", -1, 1, 0, 3, 40.0),
    Sketcher.Constraint("DistanceY", -1, 1, 0, 3, 17.32049),
])
pocket20 = doc.addObject("PartDesign::Pocket", "Pocket019")
body.addObject(pocket20)
pocket20.Profile = sketch26
pocket20.Type = "ThroughAll"
pocket20.Reversed = True

# Sketch on XZ plane
sketch27 = doc.addObject("Sketcher::SketchObject", "Sketch026")
body.addObject(sketch27)
sketch27.AttachmentSupport = (doc.XZ_Plane, [""])
sketch27.MapMode = "FlatFace"
sketch27.AttachmentOffset = App.Placement(V(0, 0, 29.001751), App.Rotation())
sketch27.addGeometry([
    Part.LineSegment(V(38.4, 20.1, 0), V(36.8, 17.3, 0)),  # 0
    Part.LineSegment(V(36.8, 17.3, 0), V(38.4, 14.5, 0)),  # 1
    Part.LineSegment(V(38.4, 14.5, 0), V(41.6, 14.5, 0)),  # 2
    Part.LineSegment(V(41.6, 14.5, 0), V(43.2, 17.3, 0)),  # 3
    Part.LineSegment(V(43.2, 17.3, 0), V(41.6, 20.1, 0)),  # 4
    Part.LineSegment(V(41.6, 20.1, 0), V(38.4, 20.1, 0)),  # 5
], False)
sketch27.addConstraint([
    Sketcher.Constraint("Coincident", 0, 2, 1, 1),
    Sketcher.Constraint("Coincident", 1, 2, 2, 1),
    Sketcher.Constraint("Coincident", 2, 2, 3, 1),
    Sketcher.Constraint("Coincident", 3, 2, 4, 1),
    Sketcher.Constraint("Coincident", 4, 2, 5, 1),
    Sketcher.Constraint("Coincident", 5, 2, 0, 1),
    Sketcher.Constraint("Horizontal", 2),
    Sketcher.Constraint("Horizontal", 5),
    Sketcher.Constraint("Parallel", 0, 3),
    Sketcher.Constraint("Parallel", 1, 4),
    Sketcher.Constraint("Horizontal", 0, 2, 3, 2),
    Sketcher.Constraint("Vertical", 2, 2, 4, 2),
    Sketcher.Constraint("Vertical", 1, 2, 5, 2),
    Sketcher.Constraint("Angle", 0, Q("-120 deg")),
    Sketcher.Constraint("DistanceX", 2, 1, 2, 2, 3.25),
    Sketcher.Constraint("DistanceX", 0, 2, 3, 2, 6.5),
    Sketcher.Constraint("DistanceX", -1, 1, 0, 2, 36.75),
    Sketcher.Constraint("DistanceY", -1, 1, 0, 2, 17.32049),
])
pocket21 = doc.addObject("PartDesign::Pocket", "Pocket020")
body.addObject(pocket21)
pocket21.Profile = sketch27
pocket21.Length = 14

doc.recompute()
